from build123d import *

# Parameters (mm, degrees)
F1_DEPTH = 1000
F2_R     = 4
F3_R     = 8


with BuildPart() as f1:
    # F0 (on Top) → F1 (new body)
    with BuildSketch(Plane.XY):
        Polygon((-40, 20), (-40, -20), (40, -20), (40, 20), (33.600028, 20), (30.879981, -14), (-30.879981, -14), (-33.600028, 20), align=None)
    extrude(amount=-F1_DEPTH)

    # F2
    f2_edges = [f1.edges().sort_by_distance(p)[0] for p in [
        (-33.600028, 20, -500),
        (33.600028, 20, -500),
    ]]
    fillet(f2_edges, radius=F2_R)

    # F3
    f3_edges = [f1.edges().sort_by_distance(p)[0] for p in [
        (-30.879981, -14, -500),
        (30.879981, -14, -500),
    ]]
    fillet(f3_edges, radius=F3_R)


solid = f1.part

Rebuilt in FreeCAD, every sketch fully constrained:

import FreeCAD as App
import Part
import Sketcher

V = App.Vector


def edges_at(feature, points):
    """Names of the edges that pass closest to the given points."""
    edges = feature.Shape.Edges
    near = lambda p: min(range(len(edges)), key=lambda i: edges[i].distToShape(Part.Vertex(*p))[0])
    return sorted({f"Edge{near(p) + 1}" for p in points})

doc = App.newDocument("Part")
body = doc.addObject("PartDesign::Body", "Body")

# Sketch on XY plane
sketch1 = body.newObject("Sketcher::SketchObject", "Sketch")
sketch1.AttachmentSupport = (doc.getObject("XY_Plane"), [""])
sketch1.MapMode = "FlatFace"
sketch1.addGeometry(Part.LineSegment(V(-40, 20, 0), V(-40, -20, 0)), False)
sketch1.addGeometry(Part.LineSegment(V(-40, -20, 0), V(40, -20, 0)), False)
sketch1.addGeometry(Part.LineSegment(V(40, -20, 0), V(40, 20, 0)), False)
sketch1.addGeometry(Part.LineSegment(V(40, 20, 0), V(34, 20, 0)), False)
sketch1.addGeometry(Part.LineSegment(V(34, 20, 0), V(31, -14, 0)), False)
sketch1.addGeometry(Part.LineSegment(V(31, -14, 0), V(-31, -14, 0)), False)
sketch1.addGeometry(Part.LineSegment(V(-31, -14, 0), V(-34, 20, 0)), False)
sketch1.addGeometry(Part.LineSegment(V(-34, 20, 0), V(-40, 20, 0)), False)
sketch1.addConstraint(Sketcher.Constraint("Coincident", 0, 2, 1, 1))
sketch1.addConstraint(Sketcher.Constraint("Coincident", 1, 2, 2, 1))
sketch1.addConstraint(Sketcher.Constraint("Coincident", 2, 2, 3, 1))
sketch1.addConstraint(Sketcher.Constraint("Coincident", 3, 2, 4, 1))
sketch1.addConstraint(Sketcher.Constraint("Coincident", 4, 2, 5, 1))
sketch1.addConstraint(Sketcher.Constraint("Coincident", 5, 2, 6, 1))
sketch1.addConstraint(Sketcher.Constraint("Coincident", 6, 2, 7, 1))
sketch1.addConstraint(Sketcher.Constraint("Coincident", 7, 2, 0, 1))
sketch1.addConstraint(Sketcher.Constraint("Vertical", 0))
sketch1.addConstraint(Sketcher.Constraint("Horizontal", 1))
sketch1.addConstraint(Sketcher.Constraint("Vertical", 2))
sketch1.addConstraint(Sketcher.Constraint("Horizontal", 3))
sketch1.addConstraint(Sketcher.Constraint("Horizontal", 5))
sketch1.addConstraint(Sketcher.Constraint("Horizontal", 7))
sketch1.addConstraint(Sketcher.Constraint("Symmetric", 0, 2, 2, 2, -1, 1))
sketch1.addConstraint(Sketcher.Constraint("Symmetric", 3, 2, 6, 2, -2))
sketch1.addConstraint(Sketcher.Constraint("Equal", 4, 6))
sketch1.addConstraint(Sketcher.Constraint("DistanceX", 1, 1, 1, 2, 80.0))
sketch1.addConstraint(Sketcher.Constraint("DistanceY", 0, 2, 0, 1, 40.0))
sketch1.addConstraint(Sketcher.Constraint("DistanceY", 4, 2, -1, 1, 14.0))
sketch1.addConstraint(Sketcher.Constraint("DistanceX", 3, 2, 3, 1, 6.399972))
sketch1.addConstraint(Sketcher.Constraint("Distance", 4, 34.10863))
pad1 = body.newObject("PartDesign::Pad", "Pad")
pad1.Profile = sketch1
pad1.Length = 1000
pad1.Reversed = True
doc.recompute()

fillet = body.newObject("PartDesign::Fillet", "Fillet")
fillet.Base = (pad1, edges_at(pad1, [(-33.6, 20, -500), (33.6, 20, -500)]))
fillet.Radius = 4
doc.recompute()

fillet2 = body.newObject("PartDesign::Fillet", "Fillet001")
fillet2.Base = (fillet, edges_at(fillet, [(-30.88, -14, -500), (30.88, -14, -500)]))
fillet2.Radius = 8

doc.recompute()
